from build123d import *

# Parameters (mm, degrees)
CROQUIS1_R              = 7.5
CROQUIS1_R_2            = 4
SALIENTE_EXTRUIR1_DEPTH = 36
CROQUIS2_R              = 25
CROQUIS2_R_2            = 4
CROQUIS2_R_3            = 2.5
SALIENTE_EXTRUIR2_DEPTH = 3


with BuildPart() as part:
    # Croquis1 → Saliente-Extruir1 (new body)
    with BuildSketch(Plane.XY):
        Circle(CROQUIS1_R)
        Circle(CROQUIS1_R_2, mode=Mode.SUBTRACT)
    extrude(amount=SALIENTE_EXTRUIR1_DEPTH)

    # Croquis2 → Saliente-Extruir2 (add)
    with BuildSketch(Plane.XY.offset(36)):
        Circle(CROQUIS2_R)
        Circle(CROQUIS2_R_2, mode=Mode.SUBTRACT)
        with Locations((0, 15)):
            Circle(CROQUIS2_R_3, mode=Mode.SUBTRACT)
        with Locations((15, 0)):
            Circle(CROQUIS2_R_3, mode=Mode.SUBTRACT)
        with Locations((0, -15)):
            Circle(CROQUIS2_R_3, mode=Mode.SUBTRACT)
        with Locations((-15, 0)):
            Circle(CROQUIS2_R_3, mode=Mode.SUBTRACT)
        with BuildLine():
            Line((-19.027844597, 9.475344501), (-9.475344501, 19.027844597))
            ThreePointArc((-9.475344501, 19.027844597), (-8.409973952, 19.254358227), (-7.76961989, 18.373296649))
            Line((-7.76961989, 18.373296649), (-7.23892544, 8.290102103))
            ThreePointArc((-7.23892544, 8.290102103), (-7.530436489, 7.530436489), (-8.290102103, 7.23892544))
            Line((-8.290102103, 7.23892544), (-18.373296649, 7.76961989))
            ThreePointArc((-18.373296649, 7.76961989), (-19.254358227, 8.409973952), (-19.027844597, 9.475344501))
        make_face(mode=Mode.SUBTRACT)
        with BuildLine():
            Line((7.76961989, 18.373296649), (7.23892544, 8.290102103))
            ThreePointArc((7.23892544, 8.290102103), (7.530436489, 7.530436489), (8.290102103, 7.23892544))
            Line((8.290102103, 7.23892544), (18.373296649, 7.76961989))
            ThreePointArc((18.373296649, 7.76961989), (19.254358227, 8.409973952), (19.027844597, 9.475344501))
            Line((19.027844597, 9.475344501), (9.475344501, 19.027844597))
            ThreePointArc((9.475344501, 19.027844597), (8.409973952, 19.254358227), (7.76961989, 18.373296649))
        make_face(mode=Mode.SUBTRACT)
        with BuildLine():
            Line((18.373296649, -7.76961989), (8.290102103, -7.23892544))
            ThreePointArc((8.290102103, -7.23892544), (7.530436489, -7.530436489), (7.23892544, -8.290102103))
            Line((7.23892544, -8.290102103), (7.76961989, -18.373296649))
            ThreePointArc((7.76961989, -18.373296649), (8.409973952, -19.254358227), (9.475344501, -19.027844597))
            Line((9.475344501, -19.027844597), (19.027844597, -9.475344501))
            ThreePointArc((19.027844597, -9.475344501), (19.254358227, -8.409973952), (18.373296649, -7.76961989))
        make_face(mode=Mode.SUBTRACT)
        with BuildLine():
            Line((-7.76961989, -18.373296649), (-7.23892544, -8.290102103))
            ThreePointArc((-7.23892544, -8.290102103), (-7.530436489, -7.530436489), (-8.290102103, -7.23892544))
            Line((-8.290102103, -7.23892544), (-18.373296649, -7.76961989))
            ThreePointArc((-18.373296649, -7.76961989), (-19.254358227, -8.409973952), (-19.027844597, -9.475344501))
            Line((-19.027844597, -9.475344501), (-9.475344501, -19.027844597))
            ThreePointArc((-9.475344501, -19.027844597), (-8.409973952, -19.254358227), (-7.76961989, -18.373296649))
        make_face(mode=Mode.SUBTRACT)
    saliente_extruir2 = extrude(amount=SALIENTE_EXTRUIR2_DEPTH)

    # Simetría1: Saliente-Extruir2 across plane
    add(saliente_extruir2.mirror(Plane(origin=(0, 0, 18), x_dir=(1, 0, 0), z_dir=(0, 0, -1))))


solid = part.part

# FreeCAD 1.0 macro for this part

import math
import FreeCAD as App
import Part
import Sketcher

V = App.Vector
Q = App.Units.Quantity

doc = App.newDocument("Part")
body = doc.addObject("PartDesign::Body", "Body")

sketch1 = doc.addObject("Sketcher::SketchObject", "Sketch")
body.addObject(sketch1)
sketch1.AttachmentSupport = (doc.XY_Plane, [""])
sketch1.MapMode = "FlatFace"
sketch1.addGeometry([
    Part.Circle(V(0, 0, 0), V(0, 0, 1), 7.5),
    Part.Circle(V(0, 0, 0), V(0, 0, 1), 4),
], False)
sketch1.addConstraint([
    Sketcher.Constraint("Coincident", 0, 3, -1, 1),
    Sketcher.Constraint("Coincident", 1, 3, -1, 1),
    Sketcher.Constraint("Diameter", 0, Q("15 mm")),
    Sketcher.Constraint("Diameter", 1, Q("8 mm")),
])
pad1 = doc.addObject("PartDesign::Pad", "Pad")
body.addObject(pad1)
pad1.Profile = sketch1
pad1.Length = 36

sketch2 = doc.addObject("Sketcher::SketchObject", "Sketch001")
body.addObject(sketch2)
sketch2.AttachmentSupport = (doc.XY_Plane, [""])
sketch2.MapMode = "FlatFace"
sketch2.AttachmentOffset = App.Placement(V(0, 0, 36), App.Rotation())
sketch2.addGeometry([
    Part.Circle(V(0, 0, 0), V(0, 0, 1), 25),
    Part.LineSegment(V(-7.2, -8.3, 0), V(-7.8, -18.4, 0)),
    Part.ArcOfCircle(Part.Circle(V(-8.8, -18.3, 0), V(0, 0, 1), 1), math.radians(-135), math.radians(-3)),
    Part.LineSegment(V(-9.5, -19, 0), V(-19, -9.5, 0)),
    Part.ArcOfCircle(Part.Circle(V(-18.3, -8.8, 0), V(0, 0, 1), 1), math.radians(93), math.radians(225)),
    Part.LineSegment(V(-18.4, -7.8, 0), V(-8.3, -7.2, 0)),
    Part.ArcOfCircle(Part.Circle(V(-8.2, -8.2, 0), V(0, 0, 1), 1), math.radians(-3), math.radians(93)),
    Part.Circle(V(-15, 0, 0), V(0, 0, 1), 2.5),
    Part.Circle(V(0, -15, 0), V(0, 0, 1), 2.5),
    Part.LineSegment(V(8.3, -7.2, 0), V(18.4, -7.8, 0)),
    Part.ArcOfCircle(Part.Circle(V(18.3, -8.8, 0), V(0, 0, 1), 1), math.radians(-45), math.radians(87)),
    Part.LineSegment(V(19, -9.5, 0), V(9.5, -19, 0)),
    Part.ArcOfCircle(Part.Circle(V(8.8, -18.3, 0), V(0, 0, 1), 1), math.radians(-177), math.radians(-45)),
    Part.LineSegment(V(7.8, -18.4, 0), V(7.2, -8.3, 0)),
    Part.ArcOfCircle(Part.Circle(V(8.2, -8.2, 0), V(0, 0, 1), 1), math.radians(87), math.radians(183)),
    Part.Circle(V(0, 0, 0), V(0, 0, 1), 4),
    Part.Circle(V(15, 0, 0), V(0, 0, 1), 2.5),
    Part.ArcOfCircle(Part.Circle(V(-18.3, 8.8, 0), V(0, 0, 1), 1), math.radians(135), math.radians(267)),
    Part.LineSegment(V(-19, 9.5, 0), V(-9.5, 19, 0)),
    Part.ArcOfCircle(Part.Circle(V(-8.8, 18.3, 0), V(0, 0, 1), 1), math.radians(3), math.radians(135)),
    Part.LineSegment(V(-7.8, 18.4, 0), V(-7.2, 8.3, 0)),
    Part.ArcOfCircle(Part.Circle(V(-8.2, 8.2, 0), V(0, 0, 1), 1), math.radians(-93), math.radians(3)),
    Part.LineSegment(V(-8.3, 7.2, 0), V(-18.4, 7.8, 0)),
    Part.Circle(V(0, 15, 0), V(0, 0, 1), 2.5),
    Part.LineSegment(V(7.2, 8.3, 0), V(7.8, 18.4, 0)),
    Part.ArcOfCircle(Part.Circle(V(8.8, 18.3, 0), V(0, 0, 1), 1), math.radians(45), math.radians(177)),
    Part.LineSegment(V(9.5, 19, 0), V(19, 9.5, 0)),
    Part.ArcOfCircle(Part.Circle(V(18.3, 8.8, 0), V(0, 0, 1), 1), math.radians(-87), math.radians(45)),
    Part.LineSegment(V(18.4, 7.8, 0), V(8.3, 7.2, 0)),
    Part.ArcOfCircle(Part.Circle(V(8.2, 8.2, 0), V(0, 0, 1), 1), math.radians(177), math.radians(273)),
], False)
sketch2.addConstraint([
    Sketcher.Constraint("Tangent", 1, 2, 2, 2),
    Sketcher.Constraint("Tangent", 2, 1, 3, 1),
    Sketcher.Constraint("Tangent", 3, 2, 4, 2),
    Sketcher.Constraint("Tangent", 4, 1, 5, 1),
    Sketcher.Constraint("Tangent", 5, 2, 6, 2),
    Sketcher.Constraint("Tangent", 6, 1, 1, 1),
    Sketcher.Constraint("Tangent", 9, 2, 10, 2),
    Sketcher.Constraint("Tangent", 10, 1, 11, 1),
    Sketcher.Constraint("Tangent", 11, 2, 12, 2),
    Sketcher.Constraint("Tangent", 12, 1, 13, 1),
    Sketcher.Constraint("Tangent", 13, 2, 14, 2),
    Sketcher.Constraint("Tangent", 14, 1, 9, 1),
    Sketcher.Constraint("Tangent", 17, 1, 18, 1),
    Sketcher.Constraint("Tangent", 18, 2, 19, 2),
    Sketcher.Constraint("Tangent", 19, 1, 20, 1),
    Sketcher.Constraint("Tangent", 20, 2, 21, 2),
    Sketcher.Constraint("Tangent", 21, 1, 22, 1),
    Sketcher.Constraint("Tangent", 22, 2, 17, 2),
    Sketcher.Constraint("Tangent", 24, 2, 25, 2),
    Sketcher.Constraint("Tangent", 25, 1, 26, 1),
    Sketcher.Constraint("Tangent", 26, 2, 27, 2),
    Sketcher.Constraint("Tangent", 27, 1, 28, 1),
    Sketcher.Constraint("Tangent", 28, 2, 29, 2),
    Sketcher.Constraint("Tangent", 29, 1, 24, 1),
    Sketcher.Constraint("Coincident", 0, 3, -1, 1),
    Sketcher.Constraint("Coincident", 15, 3, -1, 1),
    Sketcher.Constraint("Equal", 2, 4),
    Sketcher.Constraint("Equal", 4, 6),
    Sketcher.Constraint("Equal", 7, 8),
    Sketcher.Constraint("Equal", 6, 10),
    Sketcher.Constraint("Equal", 10, 12),
    Sketcher.Constraint("Equal", 12, 14),
    Sketcher.Constraint("Equal", 8, 16),
    Sketcher.Constraint("Equal", 14, 17),
    Sketcher.Constraint("Equal", 17, 19),
    Sketcher.Constraint("Equal", 19, 21),
    Sketcher.Constraint("Equal", 16, 23),
    Sketcher.Constraint("Equal", 21, 25),
    Sketcher.Constraint("Equal", 25, 27),
    Sketcher.Constraint("Equal", 27, 29),
    Sketcher.Constraint("Symmetric", 7, 3, 16, 3, -1, 1),
    Sketcher.Constraint("Symmetric", 10, 3, 17, 3, -1, 1),
    Sketcher.Constraint("Symmetric", 12, 3, 19, 3, -1, 1),
    Sketcher.Constraint("Symmetric", 14, 3, 21, 3, -1, 1),
    Sketcher.Constraint("Symmetric", 8, 3, 23, 3, -1, 1),
    Sketcher.Constraint("Symmetric", 2, 3, 25, 3, -1, 1),
    Sketcher.Constraint("Symmetric", 4, 3, 27, 3, -1, 1),
    Sketcher.Constraint("Symmetric", 6, 3, 29, 3, -1, 1),
    Sketcher.Constraint("Symmetric", 4, 3, 10, 3, -2),
    Sketcher.Constraint("Symmetric", 2, 3, 12, 3, -2),
    Sketcher.Constraint("Symmetric", 6, 3, 14, 3, -2),
    Sketcher.Constraint("PointOnObject", 7, 3, -1),
    Sketcher.Constraint("PointOnObject", 8, 3, -2),
    Sketcher.Constraint("Perpendicular", 1, 9),
    Sketcher.Constraint("Perpendicular", 3, 11),
    Sketcher.Constraint("Diameter", 0, Q("50 mm")),
    Sketcher.Constraint("Diameter", 7, Q("5 mm")),
    Sketcher.Constraint("Diameter", 15, Q("8 mm")),
    Sketcher.Constraint("Radius", 2, Q("1 mm")),
    Sketcher.Constraint("DistanceX", 7, 3, -1, 1, Q("15 mm")),
    Sketcher.Constraint("DistanceY", 8, 3, -1, 1, Q("15 mm")),
    Sketcher.Constraint("DistanceX", 4, 3, 2, 3, Q("9.5525 mm")),
    Sketcher.Constraint("DistanceX", 2, 1, 6, 3, Q("1.237801 mm")),
    Sketcher.Constraint("DistanceX", 1, 2, -1, 1, Q("7.76962 mm")),
    Sketcher.Constraint("DistanceY", 4, 1, -1, 1, Q("7.76962 mm")),
])
pad2 = doc.addObject("PartDesign::Pad", "Pad001")
body.addObject(pad2)
pad2.Profile = sketch2
pad2.Length = 3
doc.recompute()

datumplane = doc.addObject("PartDesign::Plane", "DatumPlane")
body.addObject(datumplane)
datumplane.AttachmentSupport = (doc.XY_Plane, [""])
datumplane.MapMode = "FlatFace"
datumplane.AttachmentOffset = App.Placement(V(0, 0, 18), App.Rotation())
mirrored = doc.addObject("PartDesign::Mirrored", "Mirrored")
body.addObject(mirrored)
mirrored.Originals = [pad2]
mirrored.MirrorPlane = (datumplane, [""])
body.Tip = mirrored

doc.recompute()
